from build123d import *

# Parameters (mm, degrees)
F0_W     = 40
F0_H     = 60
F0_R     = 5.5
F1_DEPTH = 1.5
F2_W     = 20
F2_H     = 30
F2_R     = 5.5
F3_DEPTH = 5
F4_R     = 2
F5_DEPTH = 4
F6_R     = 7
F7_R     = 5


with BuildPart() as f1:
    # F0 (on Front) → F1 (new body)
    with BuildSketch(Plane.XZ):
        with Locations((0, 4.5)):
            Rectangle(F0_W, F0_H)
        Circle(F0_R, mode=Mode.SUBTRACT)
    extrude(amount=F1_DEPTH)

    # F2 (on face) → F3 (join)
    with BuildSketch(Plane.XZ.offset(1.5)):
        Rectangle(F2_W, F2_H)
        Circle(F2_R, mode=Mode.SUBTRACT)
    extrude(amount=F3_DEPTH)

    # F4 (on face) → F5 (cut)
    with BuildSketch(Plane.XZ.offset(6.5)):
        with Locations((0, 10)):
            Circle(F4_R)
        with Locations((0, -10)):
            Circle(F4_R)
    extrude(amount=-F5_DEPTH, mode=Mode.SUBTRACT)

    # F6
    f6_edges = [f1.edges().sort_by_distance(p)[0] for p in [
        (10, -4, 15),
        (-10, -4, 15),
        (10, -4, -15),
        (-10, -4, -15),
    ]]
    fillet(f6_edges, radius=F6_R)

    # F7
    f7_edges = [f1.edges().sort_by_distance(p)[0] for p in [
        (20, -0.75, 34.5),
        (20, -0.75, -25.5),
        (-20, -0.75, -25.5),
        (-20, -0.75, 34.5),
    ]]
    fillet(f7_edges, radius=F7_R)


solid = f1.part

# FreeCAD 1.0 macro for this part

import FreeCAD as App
import Part
import Sketcher

V = App.Vector
Q = App.Units.Quantity


def edges_at(feature, points):
    """Names of the edges that pass closest to the given points."""
    edges = feature.Shape.Edges
    near = lambda p: min(range(len(edges)), key=lambda i: edges[i].distToShape(Part.Vertex(*p))[0])
    return sorted({f"Edge{near(p) + 1}" for p in points})

doc = App.newDocument("Part")
body = doc.addObject("PartDesign::Body", "Body")

# Sketch on XZ plane
sketch1 = doc.addObject("Sketcher::SketchObject", "Sketch")
body.addObject(sketch1)
sketch1.AttachmentSupport = (doc.XZ_Plane, [""])
sketch1.MapMode = "FlatFace"
sketch1.addGeometry(Part.LineSegment(V(-20, 34, 0), V(-20, -26, 0)), False)
sketch1.addGeometry(Part.LineSegment(V(-20, -26, 0), V(20, -26, 0)), False)
sketch1.addGeometry(Part.LineSegment(V(20, -26, 0), V(20, 34, 0)), False)
sketch1.addGeometry(Part.LineSegment(V(20, 34, 0), V(-20, 34, 0)), False)
sketch1.addGeometry(Part.Circle(V(0, 0, 0), V(0, 0, 1), 6), False)
sketch1.addConstraint(Sketcher.Constraint("Coincident", 0, 2, 1, 1))
sketch1.addConstraint(Sketcher.Constraint("Coincident", 1, 2, 2, 1))
sketch1.addConstraint(Sketcher.Constraint("Coincident", 2, 2, 3, 1))
sketch1.addConstraint(Sketcher.Constraint("Coincident", 3, 2, 0, 1))
sketch1.addConstraint(Sketcher.Constraint("Vertical", 0))
sketch1.addConstraint(Sketcher.Constraint("Horizontal", 1))
sketch1.addConstraint(Sketcher.Constraint("Vertical", 2))
sketch1.addConstraint(Sketcher.Constraint("Horizontal", 3))
sketch1.addConstraint(Sketcher.Constraint("Coincident", 4, 3, -1, 1))
sketch1.addConstraint(Sketcher.Constraint("Diameter", 4, Q("11 mm")))
sketch1.addConstraint(Sketcher.Constraint("DistanceX", 1, 1, 1, 2, Q("40 mm")))
sketch1.addConstraint(Sketcher.Constraint("DistanceY", 0, 2, 0, 1, Q("60 mm")))
sketch1.addConstraint(Sketcher.Constraint("DistanceX", 0, 2, -1, 1, Q("20 mm")))
sketch1.addConstraint(Sketcher.Constraint("DistanceY", 0, 2, -1, 1, Q("25.5 mm")))
pad1 = doc.addObject("PartDesign::Pad", "Pad")
body.addObject(pad1)
pad1.Profile = sketch1
pad1.Length = 1.5

# Sketch on XZ plane
sketch2 = doc.addObject("Sketcher::SketchObject", "Sketch001")
body.addObject(sketch2)
sketch2.AttachmentSupport = (doc.XZ_Plane, [""])
sketch2.MapMode = "FlatFace"
sketch2.AttachmentOffset = App.Placement(V(0, 0, 1.5), App.Rotation())
sketch2.addGeometry(Part.LineSegment(V(-10, 15, 0), V(-10, -15, 0)), False)
sketch2.addGeometry(Part.LineSegment(V(-10, -15, 0), V(10, -15, 0)), False)
sketch2.addGeometry(Part.LineSegment(V(10, -15, 0), V(10, 15, 0)), False)
sketch2.addGeometry(Part.LineSegment(V(10, 15, 0), V(-10, 15, 0)), False)
sketch2.addGeometry(Part.Circle(V(0, 0, 0), V(0, 0, 1), 6), False)
sketch2.addConstraint(Sketcher.Constraint("Coincident", 0, 2, 1, 1))
sketch2.addConstraint(Sketcher.Constraint("Coincident", 1, 2, 2, 1))
sketch2.addConstraint(Sketcher.Constraint("Coincident", 2, 2, 3, 1))
sketch2.addConstraint(Sketcher.Constraint("Coincident", 3, 2, 0, 1))
sketch2.addConstraint(Sketcher.Constraint("Vertical", 0))
sketch2.addConstraint(Sketcher.Constraint("Horizontal", 1))
sketch2.addConstraint(Sketcher.Constraint("Vertical", 2))
sketch2.addConstraint(Sketcher.Constraint("Horizontal", 3))
sketch2.addConstraint(Sketcher.Constraint("Coincident", 4, 3, -1, 1))
sketch2.addConstraint(Sketcher.Constraint("Symmetric", 0, 2, 2, 2, -1, 1))
sketch2.addConstraint(Sketcher.Constraint("Diameter", 4, Q("11 mm")))
sketch2.addConstraint(Sketcher.Constraint("DistanceX", 1, 1, 1, 2, Q("20 mm")))
sketch2.addConstraint(Sketcher.Constraint("DistanceY", 0, 2, 0, 1, Q("30 mm")))
pad2 = doc.addObject("PartDesign::Pad", "Pad001")
body.addObject(pad2)
pad2.Profile = sketch2
pad2.Length = 5

# Sketch on XZ plane
sketch3 = doc.addObject("Sketcher::SketchObject", "Sketch002")
body.addObject(sketch3)
sketch3.AttachmentSupport = (doc.XZ_Plane, [""])
sketch3.MapMode = "FlatFace"
sketch3.AttachmentOffset = App.Placement(V(0, 0, 6.5), App.Rotation())
sketch3.addGeometry(Part.Circle(V(0, 10, 0), V(0, 0, 1), 2), False)
sketch3.addGeometry(Part.Circle(V(0, -10, 0), V(0, 0, 1), 2), False)
sketch3.addConstraint(Sketcher.Constraint("Equal", 0, 1))
sketch3.addConstraint(Sketcher.Constraint("Symmetric", 0, 3, 1, 3, -1, 1))
sketch3.addConstraint(Sketcher.Constraint("PointOnObject", 0, 3, -2))
sketch3.addConstraint(Sketcher.Constraint("Diameter", 0, Q("4 mm")))
sketch3.addConstraint(Sketcher.Constraint("DistanceY", -1, 1, 0, 3, Q("10 mm")))
pocket1 = doc.addObject("PartDesign::Pocket", "Pocket")
body.addObject(pocket1)
pocket1.Profile = sketch3
pocket1.Length = 4
doc.recompute()

fillet = doc.addObject("PartDesign::Fillet", "Fillet")
body.addObject(fillet)
fillet.Base = (pocket1, edges_at(pocket1, [
    (10, -4, 15),
    (-10, -4, 15),
    (10, -4, -15),
    (-10, -4, -15),
]))
fillet.Radius = 7
doc.recompute()

fillet2 = doc.addObject("PartDesign::Fillet", "Fillet001")
body.addObject(fillet2)
fillet2.Base = (fillet, edges_at(fillet, [
    (20, -0.75, 34.5),
    (20, -0.75, -25.5),
    (-20, -0.75, -25.5),
    (-20, -0.75, 34.5),
]))
fillet2.Radius = 5

doc.recompute()
